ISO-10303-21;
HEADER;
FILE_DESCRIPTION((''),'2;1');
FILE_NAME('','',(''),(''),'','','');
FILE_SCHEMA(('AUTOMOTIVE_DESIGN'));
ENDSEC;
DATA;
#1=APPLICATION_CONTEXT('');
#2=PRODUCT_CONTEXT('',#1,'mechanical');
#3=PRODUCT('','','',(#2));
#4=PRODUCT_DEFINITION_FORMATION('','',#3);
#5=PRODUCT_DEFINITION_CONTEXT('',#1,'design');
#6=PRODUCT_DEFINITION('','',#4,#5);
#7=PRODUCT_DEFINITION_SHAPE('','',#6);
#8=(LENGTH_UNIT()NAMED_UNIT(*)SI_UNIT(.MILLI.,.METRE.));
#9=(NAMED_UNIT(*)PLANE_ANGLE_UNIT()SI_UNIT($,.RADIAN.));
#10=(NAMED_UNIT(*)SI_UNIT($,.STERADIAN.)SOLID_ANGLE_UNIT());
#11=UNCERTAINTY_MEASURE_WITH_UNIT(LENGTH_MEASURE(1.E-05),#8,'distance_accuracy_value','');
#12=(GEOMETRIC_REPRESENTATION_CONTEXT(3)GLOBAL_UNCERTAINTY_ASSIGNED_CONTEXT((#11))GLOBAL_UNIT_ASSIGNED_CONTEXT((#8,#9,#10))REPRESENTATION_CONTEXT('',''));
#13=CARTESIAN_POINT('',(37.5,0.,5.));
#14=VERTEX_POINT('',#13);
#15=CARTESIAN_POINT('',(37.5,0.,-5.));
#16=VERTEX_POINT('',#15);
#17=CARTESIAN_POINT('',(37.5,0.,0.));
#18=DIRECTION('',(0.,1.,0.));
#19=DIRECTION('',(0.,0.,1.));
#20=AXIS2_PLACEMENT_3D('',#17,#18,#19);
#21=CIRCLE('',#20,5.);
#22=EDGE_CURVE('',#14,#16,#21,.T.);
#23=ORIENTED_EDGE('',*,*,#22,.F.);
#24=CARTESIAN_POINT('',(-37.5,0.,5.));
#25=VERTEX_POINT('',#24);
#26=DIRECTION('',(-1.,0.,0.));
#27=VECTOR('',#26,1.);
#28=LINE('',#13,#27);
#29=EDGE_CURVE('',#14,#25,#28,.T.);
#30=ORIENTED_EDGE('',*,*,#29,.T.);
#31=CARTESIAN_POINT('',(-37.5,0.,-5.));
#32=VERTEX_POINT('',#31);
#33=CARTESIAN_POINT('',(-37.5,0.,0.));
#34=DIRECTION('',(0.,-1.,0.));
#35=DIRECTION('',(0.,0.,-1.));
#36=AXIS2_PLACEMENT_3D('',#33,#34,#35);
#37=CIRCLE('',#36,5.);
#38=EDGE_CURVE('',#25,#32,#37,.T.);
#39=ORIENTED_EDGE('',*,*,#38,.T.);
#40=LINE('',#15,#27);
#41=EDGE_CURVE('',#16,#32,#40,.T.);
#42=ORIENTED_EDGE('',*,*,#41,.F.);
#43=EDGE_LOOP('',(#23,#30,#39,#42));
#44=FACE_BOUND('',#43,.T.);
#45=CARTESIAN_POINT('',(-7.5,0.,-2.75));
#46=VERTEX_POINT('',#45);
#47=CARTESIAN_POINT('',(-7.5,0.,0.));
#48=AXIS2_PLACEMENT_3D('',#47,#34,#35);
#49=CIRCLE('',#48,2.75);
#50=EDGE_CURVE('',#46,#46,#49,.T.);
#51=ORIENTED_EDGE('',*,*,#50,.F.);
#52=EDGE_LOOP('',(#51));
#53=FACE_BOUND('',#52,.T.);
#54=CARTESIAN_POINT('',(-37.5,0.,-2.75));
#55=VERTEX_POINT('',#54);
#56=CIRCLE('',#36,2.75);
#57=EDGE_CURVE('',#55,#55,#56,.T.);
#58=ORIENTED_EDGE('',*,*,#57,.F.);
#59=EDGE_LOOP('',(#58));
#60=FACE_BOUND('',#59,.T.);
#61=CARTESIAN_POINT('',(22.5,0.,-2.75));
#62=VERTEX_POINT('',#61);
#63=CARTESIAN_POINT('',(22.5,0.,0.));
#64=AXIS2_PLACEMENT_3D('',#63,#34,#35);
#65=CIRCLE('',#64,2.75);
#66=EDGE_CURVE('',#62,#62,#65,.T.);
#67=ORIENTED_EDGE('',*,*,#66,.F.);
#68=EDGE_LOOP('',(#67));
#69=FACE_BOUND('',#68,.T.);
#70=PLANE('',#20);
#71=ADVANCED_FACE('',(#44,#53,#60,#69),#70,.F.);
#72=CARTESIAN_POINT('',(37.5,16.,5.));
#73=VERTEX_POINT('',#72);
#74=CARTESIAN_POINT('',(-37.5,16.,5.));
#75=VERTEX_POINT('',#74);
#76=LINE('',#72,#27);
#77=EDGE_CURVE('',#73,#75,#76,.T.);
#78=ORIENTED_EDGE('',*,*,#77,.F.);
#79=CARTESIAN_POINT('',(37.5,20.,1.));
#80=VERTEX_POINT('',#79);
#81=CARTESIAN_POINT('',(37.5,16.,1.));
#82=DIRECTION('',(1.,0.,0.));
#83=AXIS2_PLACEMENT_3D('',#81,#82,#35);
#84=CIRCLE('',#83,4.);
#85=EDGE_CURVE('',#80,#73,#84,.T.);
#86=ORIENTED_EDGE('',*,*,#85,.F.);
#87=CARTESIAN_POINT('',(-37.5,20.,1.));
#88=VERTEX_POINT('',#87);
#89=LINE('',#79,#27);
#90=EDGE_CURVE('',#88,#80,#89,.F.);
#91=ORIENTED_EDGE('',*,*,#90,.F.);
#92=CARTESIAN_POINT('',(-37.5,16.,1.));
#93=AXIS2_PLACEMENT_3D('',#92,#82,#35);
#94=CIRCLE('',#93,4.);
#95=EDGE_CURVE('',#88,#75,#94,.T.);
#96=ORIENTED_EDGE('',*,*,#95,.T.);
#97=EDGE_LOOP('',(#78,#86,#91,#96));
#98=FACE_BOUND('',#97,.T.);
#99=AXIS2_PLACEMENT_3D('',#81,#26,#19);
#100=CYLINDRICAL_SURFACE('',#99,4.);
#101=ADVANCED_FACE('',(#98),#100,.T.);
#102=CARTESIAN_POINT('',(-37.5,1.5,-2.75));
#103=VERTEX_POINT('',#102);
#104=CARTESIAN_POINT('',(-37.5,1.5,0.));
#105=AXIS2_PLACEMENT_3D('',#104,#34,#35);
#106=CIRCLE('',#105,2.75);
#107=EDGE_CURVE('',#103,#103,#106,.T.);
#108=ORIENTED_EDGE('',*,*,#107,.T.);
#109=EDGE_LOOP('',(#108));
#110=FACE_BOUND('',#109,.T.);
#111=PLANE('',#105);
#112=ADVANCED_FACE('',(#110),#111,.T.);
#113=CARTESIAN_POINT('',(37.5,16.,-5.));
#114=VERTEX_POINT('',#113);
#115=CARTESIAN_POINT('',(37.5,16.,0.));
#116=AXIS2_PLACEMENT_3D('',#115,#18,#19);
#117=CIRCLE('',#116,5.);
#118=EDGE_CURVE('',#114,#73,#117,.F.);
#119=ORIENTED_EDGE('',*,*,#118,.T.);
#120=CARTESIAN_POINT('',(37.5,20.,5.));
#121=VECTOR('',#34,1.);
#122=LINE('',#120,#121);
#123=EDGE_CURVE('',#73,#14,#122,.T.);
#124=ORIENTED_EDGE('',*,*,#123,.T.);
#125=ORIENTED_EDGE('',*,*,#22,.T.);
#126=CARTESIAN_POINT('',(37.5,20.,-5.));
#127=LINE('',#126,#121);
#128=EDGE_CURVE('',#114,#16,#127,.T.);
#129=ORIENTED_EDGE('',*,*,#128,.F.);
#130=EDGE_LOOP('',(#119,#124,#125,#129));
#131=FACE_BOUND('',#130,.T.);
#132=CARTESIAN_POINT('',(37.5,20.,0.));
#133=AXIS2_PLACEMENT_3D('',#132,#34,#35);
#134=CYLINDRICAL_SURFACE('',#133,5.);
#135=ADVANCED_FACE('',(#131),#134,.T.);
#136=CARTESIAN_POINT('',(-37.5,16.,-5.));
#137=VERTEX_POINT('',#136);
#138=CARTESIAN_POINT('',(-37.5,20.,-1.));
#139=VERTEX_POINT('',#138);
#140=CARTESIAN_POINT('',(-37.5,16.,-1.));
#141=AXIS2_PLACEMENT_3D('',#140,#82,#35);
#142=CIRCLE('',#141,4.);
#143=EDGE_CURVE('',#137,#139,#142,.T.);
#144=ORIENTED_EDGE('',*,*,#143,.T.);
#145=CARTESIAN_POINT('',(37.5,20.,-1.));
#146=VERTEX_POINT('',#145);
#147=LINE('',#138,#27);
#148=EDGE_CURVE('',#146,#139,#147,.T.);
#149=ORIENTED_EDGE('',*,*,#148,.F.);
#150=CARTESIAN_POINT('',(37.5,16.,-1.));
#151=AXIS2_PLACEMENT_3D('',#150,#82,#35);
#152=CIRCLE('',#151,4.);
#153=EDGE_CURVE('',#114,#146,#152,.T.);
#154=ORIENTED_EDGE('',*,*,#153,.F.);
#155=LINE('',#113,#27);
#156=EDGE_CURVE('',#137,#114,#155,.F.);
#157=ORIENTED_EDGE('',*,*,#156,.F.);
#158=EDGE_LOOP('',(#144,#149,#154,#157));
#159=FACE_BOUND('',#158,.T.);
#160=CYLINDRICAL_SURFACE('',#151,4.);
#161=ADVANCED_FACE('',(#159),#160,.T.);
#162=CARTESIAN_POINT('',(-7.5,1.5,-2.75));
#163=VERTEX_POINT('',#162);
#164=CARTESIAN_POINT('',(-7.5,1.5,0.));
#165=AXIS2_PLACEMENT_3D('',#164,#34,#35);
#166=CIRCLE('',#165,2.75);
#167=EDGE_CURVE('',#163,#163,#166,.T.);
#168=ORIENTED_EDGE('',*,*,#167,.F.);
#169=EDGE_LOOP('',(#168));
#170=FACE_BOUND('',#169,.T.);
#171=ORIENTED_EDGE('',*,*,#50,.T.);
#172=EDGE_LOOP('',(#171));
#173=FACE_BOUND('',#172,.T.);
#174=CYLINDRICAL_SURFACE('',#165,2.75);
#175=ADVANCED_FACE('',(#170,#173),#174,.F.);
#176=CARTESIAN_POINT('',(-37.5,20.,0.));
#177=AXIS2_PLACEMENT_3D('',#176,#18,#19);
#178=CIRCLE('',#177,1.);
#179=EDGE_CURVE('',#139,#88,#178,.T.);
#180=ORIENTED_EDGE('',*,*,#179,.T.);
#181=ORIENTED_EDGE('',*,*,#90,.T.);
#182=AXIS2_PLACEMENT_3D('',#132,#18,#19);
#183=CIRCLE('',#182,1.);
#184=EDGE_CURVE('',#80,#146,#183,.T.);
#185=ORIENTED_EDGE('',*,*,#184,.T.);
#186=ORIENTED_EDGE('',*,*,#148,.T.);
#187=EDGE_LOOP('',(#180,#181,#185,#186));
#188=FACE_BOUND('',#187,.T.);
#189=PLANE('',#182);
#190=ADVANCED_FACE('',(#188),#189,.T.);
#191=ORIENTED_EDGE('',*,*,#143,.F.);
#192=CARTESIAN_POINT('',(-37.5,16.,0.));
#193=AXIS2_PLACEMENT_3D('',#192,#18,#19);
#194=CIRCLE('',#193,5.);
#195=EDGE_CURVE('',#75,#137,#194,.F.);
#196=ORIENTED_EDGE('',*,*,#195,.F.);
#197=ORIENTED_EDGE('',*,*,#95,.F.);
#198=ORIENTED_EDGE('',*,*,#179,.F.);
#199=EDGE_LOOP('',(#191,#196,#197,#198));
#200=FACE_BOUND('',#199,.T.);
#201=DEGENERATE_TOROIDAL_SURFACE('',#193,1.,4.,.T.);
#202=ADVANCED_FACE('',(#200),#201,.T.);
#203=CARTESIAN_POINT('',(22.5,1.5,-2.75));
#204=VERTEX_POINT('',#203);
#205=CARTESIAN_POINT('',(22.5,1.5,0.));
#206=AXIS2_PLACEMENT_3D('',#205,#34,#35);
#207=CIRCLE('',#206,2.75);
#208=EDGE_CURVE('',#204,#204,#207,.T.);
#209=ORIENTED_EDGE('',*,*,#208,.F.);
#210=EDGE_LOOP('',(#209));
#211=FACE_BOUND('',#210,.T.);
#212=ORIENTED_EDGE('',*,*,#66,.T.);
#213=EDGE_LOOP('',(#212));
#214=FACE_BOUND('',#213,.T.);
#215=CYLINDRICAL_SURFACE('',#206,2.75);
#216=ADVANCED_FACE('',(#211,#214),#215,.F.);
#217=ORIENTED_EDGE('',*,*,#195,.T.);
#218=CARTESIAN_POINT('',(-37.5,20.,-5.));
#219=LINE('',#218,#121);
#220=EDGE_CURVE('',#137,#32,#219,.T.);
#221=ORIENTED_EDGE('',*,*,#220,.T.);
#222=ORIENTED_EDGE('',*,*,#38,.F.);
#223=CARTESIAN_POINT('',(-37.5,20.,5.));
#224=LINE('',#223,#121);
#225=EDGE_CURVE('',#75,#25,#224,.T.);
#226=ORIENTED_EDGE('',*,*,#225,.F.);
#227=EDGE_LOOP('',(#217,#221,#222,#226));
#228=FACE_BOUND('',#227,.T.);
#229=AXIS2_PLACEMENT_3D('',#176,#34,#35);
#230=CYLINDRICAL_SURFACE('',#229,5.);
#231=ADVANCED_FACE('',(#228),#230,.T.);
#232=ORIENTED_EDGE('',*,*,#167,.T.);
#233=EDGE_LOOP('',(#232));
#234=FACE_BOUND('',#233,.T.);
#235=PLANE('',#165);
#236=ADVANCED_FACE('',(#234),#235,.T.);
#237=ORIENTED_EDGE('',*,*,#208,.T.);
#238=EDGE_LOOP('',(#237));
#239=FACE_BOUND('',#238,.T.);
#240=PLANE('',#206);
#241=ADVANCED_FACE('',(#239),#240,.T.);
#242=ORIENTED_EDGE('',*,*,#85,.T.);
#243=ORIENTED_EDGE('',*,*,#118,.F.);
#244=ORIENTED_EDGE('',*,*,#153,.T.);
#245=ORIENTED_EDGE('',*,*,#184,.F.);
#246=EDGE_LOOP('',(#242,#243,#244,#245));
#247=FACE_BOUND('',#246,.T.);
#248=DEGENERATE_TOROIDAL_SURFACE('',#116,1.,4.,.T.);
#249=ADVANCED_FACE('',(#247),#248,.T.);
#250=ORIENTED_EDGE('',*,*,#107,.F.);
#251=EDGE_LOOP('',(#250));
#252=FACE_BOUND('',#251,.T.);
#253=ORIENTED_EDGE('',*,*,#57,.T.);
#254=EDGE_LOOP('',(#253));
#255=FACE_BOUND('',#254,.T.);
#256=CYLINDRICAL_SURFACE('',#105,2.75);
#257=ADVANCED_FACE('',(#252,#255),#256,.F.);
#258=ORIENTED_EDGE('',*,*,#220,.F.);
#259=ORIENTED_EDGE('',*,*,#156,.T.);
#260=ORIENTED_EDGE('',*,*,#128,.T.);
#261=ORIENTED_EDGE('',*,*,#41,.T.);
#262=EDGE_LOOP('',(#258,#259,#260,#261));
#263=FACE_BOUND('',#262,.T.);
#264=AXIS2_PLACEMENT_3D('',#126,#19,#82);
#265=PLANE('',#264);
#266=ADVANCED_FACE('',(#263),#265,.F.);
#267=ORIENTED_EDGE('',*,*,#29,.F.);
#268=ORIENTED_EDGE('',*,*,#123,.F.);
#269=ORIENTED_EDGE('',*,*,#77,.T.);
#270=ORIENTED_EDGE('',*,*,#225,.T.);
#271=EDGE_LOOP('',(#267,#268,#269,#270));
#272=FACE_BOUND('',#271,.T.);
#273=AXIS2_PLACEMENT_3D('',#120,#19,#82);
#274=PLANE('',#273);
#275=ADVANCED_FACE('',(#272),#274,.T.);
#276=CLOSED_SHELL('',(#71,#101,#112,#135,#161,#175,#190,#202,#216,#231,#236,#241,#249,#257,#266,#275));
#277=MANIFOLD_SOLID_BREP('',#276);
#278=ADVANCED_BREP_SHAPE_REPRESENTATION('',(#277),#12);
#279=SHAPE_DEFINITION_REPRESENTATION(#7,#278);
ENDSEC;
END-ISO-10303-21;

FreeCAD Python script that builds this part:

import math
import FreeCAD as App
import Part
import Sketcher

V = App.Vector
Q = App.Units.Quantity


def edges_at(feature, points):
    """Names of the edges that pass closest to the given points."""
    edges = feature.Shape.Edges
    near = lambda p: min(range(len(edges)), key=lambda i: edges[i].distToShape(Part.Vertex(*p))[0])
    return sorted({f"Edge{near(p) + 1}" for p in points})

doc = App.newDocument("Part")
body = doc.addObject("PartDesign::Body", "Body")

sketch1 = body.newObject("Sketcher::SketchObject", "Sketch")
sketch1.AttachmentSupport = (doc.getObject("XZ_Plane"), [""])
sketch1.MapMode = "FlatFace"
sketch1.addGeometry([
    Part.LineSegment(V(-37.5, 5, 0), V(37.5, 5, 0)),
    Part.ArcOfCircle(Part.Circle(V(37.5, 0, 0), V(0, 0, 1), 5), math.radians(-90), math.radians(90)),
    Part.LineSegment(V(37.5, -5, 0), V(-37.5, -5, 0)),
    Part.ArcOfCircle(Part.Circle(V(-37.5, 0, 0), V(0, 0, 1), 5), math.radians(90), math.radians(270)),
], False)
sketch1.addConstraint([
    Sketcher.Constraint("Tangent", 0, 2, 1, 2),
    Sketcher.Constraint("Tangent", 1, 1, 2, 1),
    Sketcher.Constraint("Tangent", 2, 2, 3, 2),
    Sketcher.Constraint("Tangent", 3, 1, 0, 1),
    Sketcher.Constraint("Horizontal", 0),
    Sketcher.Constraint("Horizontal", 2),
    Sketcher.Constraint("Symmetric", 1, 3, 3, 3, -1, 1),
    Sketcher.Constraint("Radius", 1, Q("5 mm")),
    Sketcher.Constraint("DistanceX", 0, 1, 0, 2, Q("75 mm")),
])
pad1 = body.newObject("PartDesign::Pad", "Pad")
pad1.Profile = sketch1
pad1.Length = 20
pad1.Reversed = True
doc.recompute()

fillet = body.newObject("PartDesign::Fillet", "Fillet")
fillet.Base = (pad1, edges_at(pad1, [
    (-42.5, 20, 0),
    (0, 20, 5),
    (42.5, 20, 0),
    (0, 20, -5),
]))
fillet.Radius = 4

sketch2 = body.newObject("Sketcher::SketchObject", "Sketch001")
sketch2.AttachmentSupport = (doc.getObject("XZ_Plane"), [""])
sketch2.MapMode = "FlatFace"
sketch2.addGeometry(Part.Circle(V(-37.5, 0, 0), V(0, 0, 1), 2.75), False)
sketch2.addConstraint([
    Sketcher.Constraint("PointOnObject", 0, 3, -1),
    Sketcher.Constraint("Diameter", 0, Q("5.5 mm")),
    Sketcher.Constraint("DistanceX", 0, 3, -1, 1, Q("37.5 mm")),
])
pocket1 = body.newObject("PartDesign::Pocket", "Pocket")
pocket1.Profile = sketch2
pocket1.Length = 1.5
doc.recompute()

linearpattern = body.newObject("PartDesign::LinearPattern", "LinearPattern")
linearpattern.Originals = [pocket1]
linearpattern.Direction = (doc.getObject("X_Axis"), [""])
linearpattern.Mode = "offset"
linearpattern.Offset = 30
linearpattern.Occurrences = 3
body.Tip = linearpattern

doc.recompute()
